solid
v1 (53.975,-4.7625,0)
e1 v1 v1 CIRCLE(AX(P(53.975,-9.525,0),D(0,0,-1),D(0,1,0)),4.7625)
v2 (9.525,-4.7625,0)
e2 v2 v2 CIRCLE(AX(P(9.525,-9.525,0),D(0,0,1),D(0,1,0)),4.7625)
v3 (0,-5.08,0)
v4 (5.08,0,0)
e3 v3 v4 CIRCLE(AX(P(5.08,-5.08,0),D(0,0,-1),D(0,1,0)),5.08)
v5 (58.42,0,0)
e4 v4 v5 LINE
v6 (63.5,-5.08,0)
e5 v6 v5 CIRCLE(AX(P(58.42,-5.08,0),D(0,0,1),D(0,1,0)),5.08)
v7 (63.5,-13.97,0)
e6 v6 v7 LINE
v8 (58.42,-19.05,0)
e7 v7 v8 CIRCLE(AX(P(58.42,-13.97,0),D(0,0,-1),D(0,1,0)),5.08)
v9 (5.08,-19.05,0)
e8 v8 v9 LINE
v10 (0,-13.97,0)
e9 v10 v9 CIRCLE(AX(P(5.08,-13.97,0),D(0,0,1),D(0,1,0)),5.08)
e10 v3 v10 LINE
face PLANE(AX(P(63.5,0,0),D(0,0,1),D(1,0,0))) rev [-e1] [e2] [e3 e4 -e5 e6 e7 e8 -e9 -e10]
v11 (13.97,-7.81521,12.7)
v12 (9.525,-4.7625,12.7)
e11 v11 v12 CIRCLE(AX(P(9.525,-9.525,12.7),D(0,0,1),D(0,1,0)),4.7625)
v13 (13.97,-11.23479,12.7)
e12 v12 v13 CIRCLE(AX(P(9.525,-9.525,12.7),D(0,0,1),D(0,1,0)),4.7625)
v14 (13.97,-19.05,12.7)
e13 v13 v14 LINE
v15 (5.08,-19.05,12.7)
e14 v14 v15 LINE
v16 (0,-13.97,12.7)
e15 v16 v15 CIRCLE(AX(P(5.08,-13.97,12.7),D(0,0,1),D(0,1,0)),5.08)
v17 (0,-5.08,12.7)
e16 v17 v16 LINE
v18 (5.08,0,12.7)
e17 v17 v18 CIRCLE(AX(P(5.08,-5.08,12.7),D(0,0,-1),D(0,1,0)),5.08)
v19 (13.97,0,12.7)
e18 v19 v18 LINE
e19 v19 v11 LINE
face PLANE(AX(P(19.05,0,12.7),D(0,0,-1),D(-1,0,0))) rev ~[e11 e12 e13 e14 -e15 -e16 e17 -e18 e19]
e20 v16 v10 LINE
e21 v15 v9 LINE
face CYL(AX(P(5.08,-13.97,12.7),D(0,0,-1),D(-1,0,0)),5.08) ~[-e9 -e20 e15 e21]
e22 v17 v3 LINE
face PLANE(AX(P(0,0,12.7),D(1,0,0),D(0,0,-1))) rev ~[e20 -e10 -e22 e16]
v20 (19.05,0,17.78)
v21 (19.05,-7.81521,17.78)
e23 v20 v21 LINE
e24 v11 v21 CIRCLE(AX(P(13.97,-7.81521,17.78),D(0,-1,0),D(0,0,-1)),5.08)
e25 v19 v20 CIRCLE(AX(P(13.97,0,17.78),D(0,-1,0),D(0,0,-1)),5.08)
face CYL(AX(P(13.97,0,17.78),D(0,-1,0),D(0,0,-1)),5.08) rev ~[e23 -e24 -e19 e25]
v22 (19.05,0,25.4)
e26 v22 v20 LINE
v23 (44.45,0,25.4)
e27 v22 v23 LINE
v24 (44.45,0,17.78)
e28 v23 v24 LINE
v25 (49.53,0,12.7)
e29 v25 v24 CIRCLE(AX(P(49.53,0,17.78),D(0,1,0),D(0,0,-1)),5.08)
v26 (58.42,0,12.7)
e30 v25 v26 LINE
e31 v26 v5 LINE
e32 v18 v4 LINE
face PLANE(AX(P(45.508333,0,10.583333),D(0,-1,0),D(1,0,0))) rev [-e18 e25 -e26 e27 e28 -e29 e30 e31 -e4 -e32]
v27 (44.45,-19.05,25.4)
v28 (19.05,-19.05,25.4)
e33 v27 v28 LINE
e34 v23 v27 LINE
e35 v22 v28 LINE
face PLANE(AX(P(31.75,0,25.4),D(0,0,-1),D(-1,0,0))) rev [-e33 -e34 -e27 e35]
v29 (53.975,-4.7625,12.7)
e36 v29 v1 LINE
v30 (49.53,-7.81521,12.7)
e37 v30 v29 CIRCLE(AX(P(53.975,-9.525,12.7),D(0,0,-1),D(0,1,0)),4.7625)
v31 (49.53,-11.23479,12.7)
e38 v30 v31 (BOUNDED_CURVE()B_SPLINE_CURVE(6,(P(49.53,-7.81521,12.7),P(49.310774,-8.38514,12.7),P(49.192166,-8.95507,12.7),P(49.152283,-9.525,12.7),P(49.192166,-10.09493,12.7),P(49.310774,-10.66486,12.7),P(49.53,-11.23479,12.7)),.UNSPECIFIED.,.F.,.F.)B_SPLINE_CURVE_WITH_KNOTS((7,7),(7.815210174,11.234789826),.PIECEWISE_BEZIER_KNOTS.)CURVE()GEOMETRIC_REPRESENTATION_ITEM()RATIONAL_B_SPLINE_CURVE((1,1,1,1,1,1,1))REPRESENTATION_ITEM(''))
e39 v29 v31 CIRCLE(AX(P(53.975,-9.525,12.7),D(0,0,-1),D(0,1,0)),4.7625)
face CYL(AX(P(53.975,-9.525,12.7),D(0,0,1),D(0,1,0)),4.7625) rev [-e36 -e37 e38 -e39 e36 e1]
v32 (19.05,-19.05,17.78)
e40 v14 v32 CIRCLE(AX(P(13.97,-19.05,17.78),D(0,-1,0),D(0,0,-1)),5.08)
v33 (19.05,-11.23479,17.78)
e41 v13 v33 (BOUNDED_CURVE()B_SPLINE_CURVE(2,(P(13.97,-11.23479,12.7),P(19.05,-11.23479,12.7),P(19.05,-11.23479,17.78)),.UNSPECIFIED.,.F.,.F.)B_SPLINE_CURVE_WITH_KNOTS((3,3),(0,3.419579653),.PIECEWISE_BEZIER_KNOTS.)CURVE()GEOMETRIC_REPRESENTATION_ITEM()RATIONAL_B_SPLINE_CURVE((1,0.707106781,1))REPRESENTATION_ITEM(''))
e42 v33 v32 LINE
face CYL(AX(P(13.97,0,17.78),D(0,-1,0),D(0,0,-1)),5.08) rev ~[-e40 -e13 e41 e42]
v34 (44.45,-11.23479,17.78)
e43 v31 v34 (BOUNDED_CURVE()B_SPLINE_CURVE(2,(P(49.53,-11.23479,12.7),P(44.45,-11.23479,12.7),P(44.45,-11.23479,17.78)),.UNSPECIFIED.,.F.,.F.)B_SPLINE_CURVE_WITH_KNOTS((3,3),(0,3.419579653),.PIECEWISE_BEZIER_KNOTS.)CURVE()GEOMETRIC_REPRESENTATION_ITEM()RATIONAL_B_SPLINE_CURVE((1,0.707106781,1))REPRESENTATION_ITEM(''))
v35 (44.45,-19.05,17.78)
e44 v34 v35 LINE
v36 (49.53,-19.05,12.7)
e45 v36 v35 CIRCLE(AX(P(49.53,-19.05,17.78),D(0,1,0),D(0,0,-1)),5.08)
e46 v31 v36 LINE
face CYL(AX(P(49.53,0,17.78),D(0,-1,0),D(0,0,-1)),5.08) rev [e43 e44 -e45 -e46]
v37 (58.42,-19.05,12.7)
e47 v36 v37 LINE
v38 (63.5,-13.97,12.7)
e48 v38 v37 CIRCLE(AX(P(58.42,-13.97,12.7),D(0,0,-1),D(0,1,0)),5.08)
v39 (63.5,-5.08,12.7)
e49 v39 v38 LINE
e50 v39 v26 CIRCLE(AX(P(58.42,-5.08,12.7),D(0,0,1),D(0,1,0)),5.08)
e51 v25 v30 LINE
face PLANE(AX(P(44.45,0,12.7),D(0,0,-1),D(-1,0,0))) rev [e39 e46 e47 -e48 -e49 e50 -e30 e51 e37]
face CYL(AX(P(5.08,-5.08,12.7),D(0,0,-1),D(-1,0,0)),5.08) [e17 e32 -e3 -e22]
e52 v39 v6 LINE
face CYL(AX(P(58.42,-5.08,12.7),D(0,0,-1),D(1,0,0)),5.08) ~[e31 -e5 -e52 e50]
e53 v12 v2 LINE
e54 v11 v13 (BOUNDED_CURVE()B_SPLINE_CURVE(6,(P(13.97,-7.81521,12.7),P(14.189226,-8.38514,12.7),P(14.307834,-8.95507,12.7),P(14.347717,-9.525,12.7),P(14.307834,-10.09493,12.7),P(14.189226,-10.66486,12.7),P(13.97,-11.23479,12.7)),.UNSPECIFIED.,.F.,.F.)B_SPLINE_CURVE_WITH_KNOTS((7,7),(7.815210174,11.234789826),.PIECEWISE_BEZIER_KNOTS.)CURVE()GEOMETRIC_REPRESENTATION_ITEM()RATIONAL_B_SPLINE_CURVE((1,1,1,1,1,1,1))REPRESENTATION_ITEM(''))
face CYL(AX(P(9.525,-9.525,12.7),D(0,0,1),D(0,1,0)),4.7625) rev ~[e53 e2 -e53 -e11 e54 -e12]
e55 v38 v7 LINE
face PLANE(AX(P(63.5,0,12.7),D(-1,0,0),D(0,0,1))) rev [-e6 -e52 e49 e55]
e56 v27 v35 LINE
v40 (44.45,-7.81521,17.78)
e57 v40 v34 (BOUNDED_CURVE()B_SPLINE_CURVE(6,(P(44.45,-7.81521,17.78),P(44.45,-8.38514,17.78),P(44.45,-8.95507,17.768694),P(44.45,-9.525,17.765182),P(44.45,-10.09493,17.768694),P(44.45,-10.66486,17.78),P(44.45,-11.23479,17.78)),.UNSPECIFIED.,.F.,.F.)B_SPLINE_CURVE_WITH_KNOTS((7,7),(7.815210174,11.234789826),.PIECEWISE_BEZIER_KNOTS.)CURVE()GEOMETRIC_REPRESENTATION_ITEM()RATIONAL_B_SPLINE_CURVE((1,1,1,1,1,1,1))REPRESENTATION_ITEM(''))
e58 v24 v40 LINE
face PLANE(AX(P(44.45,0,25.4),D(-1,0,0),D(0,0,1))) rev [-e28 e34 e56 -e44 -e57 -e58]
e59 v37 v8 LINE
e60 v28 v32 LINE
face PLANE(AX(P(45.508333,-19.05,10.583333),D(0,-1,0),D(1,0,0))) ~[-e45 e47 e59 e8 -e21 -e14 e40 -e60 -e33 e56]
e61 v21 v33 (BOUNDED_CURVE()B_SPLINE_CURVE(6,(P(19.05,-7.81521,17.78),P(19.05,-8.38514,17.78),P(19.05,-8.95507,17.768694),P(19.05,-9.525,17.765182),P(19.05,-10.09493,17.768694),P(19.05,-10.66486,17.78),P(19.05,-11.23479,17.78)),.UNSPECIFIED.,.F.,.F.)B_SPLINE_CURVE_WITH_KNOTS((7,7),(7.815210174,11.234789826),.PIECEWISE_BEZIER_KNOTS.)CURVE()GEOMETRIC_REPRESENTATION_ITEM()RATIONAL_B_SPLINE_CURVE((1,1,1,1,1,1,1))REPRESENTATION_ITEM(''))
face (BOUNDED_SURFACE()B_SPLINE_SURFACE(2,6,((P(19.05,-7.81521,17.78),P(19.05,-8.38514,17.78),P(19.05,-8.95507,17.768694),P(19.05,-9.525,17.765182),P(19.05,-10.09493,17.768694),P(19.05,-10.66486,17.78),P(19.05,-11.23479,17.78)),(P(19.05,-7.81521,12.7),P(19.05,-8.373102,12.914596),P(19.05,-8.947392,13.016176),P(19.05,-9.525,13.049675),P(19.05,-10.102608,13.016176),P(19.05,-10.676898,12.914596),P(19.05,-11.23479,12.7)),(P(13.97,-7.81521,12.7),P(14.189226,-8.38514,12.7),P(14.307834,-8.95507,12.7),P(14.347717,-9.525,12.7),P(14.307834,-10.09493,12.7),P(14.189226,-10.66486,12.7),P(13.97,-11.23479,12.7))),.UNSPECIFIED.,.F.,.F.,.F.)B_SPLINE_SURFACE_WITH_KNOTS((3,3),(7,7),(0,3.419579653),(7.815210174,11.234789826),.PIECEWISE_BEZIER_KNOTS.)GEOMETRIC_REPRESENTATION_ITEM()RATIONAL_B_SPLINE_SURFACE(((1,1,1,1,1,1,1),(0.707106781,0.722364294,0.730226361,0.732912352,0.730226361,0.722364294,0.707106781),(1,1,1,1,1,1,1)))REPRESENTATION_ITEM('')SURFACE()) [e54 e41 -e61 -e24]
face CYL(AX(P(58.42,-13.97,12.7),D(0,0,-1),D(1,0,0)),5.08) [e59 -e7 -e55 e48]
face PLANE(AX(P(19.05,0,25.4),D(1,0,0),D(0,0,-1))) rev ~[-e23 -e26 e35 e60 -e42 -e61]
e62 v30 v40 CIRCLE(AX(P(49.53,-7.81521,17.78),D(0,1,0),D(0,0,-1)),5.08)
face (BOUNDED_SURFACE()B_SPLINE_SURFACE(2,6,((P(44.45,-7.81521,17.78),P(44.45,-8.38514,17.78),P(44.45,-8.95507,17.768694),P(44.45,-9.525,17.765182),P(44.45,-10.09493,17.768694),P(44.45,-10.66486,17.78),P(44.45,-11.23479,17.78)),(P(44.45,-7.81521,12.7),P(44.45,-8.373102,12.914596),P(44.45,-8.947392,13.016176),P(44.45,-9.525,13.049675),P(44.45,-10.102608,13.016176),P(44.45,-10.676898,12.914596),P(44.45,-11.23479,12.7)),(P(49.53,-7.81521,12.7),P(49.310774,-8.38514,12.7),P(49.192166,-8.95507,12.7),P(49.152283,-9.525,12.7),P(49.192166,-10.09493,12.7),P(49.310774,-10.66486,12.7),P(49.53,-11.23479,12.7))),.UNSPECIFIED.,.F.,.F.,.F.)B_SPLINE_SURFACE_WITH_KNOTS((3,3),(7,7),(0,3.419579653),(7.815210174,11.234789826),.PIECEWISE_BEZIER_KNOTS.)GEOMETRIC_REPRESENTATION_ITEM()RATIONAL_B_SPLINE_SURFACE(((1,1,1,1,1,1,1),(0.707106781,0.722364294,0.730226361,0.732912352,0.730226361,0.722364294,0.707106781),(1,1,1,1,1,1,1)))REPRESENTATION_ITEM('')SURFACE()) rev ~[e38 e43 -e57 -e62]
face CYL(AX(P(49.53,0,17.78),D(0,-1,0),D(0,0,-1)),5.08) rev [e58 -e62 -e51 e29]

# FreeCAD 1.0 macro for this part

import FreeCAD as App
import Part
import Sketcher
from FreeCAD import Vector
Q = App.Units.Quantity


def edges_at(feature, points):
    """Names of the edges that pass closest to the given points."""
    edges = feature.Shape.Edges
    near = lambda p: min(range(len(edges)), key=lambda i: edges[i].distToShape(Part.Vertex(*p))[0])
    return sorted({f"Edge{near(p) + 1}" for p in points})

doc = App.newDocument("Part")
params = doc.addObject("Spreadsheet::Sheet", "Params")
for row, (alias, value) in enumerate([
    ("sketch1_height", "1 in"),
    ("sketch1_width", "1.25 in"),
    ("pad1_length", "0.75 in"),
    ("sketch2_diameter", "0.375 in"),
    ("pocket1_length", "1 in"),
    ("fillet_radius", "0.2 in"),
], start=1):
    params.set(f"A{row}", alias)
    params.set(f"B{row}", "=" + value)
    params.setAlias(f"B{row}", alias)

body = doc.addObject("PartDesign::Body", "Body")

# Sketch on XZ plane
sketch1 = body.newObject("Sketcher::SketchObject", "Sketch")
sketch1.AttachmentSupport = (doc.getObject("XZ_Plane"), [""])
sketch1.MapMode = "FlatFace"
sketch1.addGeometry([
    Part.LineSegment(Vector(0, 12.7, 0), Vector(0, 0, 0)),  # 0
    Part.LineSegment(Vector(0, 0, 0), Vector(31.75, 0, 0)),  # 1
    Part.LineSegment(Vector(31.75, 0, 0), Vector(31.75, 25.4, 0)),  # 2
    Part.LineSegment(Vector(31.75, 25.4, 0), Vector(19.05, 25.4, 0)),  # 3
    Part.LineSegment(Vector(19.05, 25.4, 0), Vector(19.05, 12.7, 0)),  # 4
    Part.LineSegment(Vector(19.05, 12.7, 0), Vector(0, 12.7, 0)),  # 5
], False)
sketch1.addConstraint([
    Sketcher.Constraint("Coincident", 0, 2, 1, 1),
    Sketcher.Constraint("Coincident", 1, 2, 2, 1),
    Sketcher.Constraint("Coincident", 2, 2, 3, 1),
    Sketcher.Constraint("Coincident", 3, 2, 4, 1),
    Sketcher.Constraint("Coincident", 4, 2, 5, 1),
    Sketcher.Constraint("Coincident", 5, 2, 0, 1),
    Sketcher.Constraint("Vertical", 0),
    Sketcher.Constraint("Horizontal", 1),
    Sketcher.Constraint("Vertical", 2),
    Sketcher.Constraint("Horizontal", 3),
    Sketcher.Constraint("Vertical", 4),
    Sketcher.Constraint("Horizontal", 5),
    Sketcher.Constraint("Coincident", 0, 2, -1, 1),
    Sketcher.Constraint("Equal", 3, 0),
    Sketcher.Constraint("Equal", 0, 4),
    Sketcher.Constraint("DistanceY", 2, 1, 2, 2, Q("1 in")),
    Sketcher.Constraint("DistanceX", 1, 1, 1, 2, Q("1.25 in")),
])
sketch1.setExpression("Constraints[15]", "Params.sketch1_height")
sketch1.setExpression("Constraints[16]", "Params.sketch1_width")
pad1 = body.newObject("PartDesign::Pad", "Pad")
pad1.Profile = sketch1
pad1.setExpression("Length", "Params.pad1_length")

# Sketch on XY plane
sketch2 = body.newObject("Sketcher::SketchObject", "Sketch001")
sketch2.AttachmentSupport = (doc.getObject("XY_Plane"), [""])
sketch2.MapMode = "FlatFace"
sketch2.AttachmentOffset = App.Placement(Vector(0, 0, 0.5 * 25.4), App.Rotation())
sketch2.addGeometry(Part.Circle(Vector(9.525, -9.525, 0), Vector(0, 0, 1), 4.7625), False)
sketch2.addConstraint([
    Sketcher.Constraint("Diameter", 0, Q("0.375 in")),
    Sketcher.Constraint("DistanceX", -1, 1, 0, 3, Q("0.375 in")),
    Sketcher.Constraint("DistanceY", 0, 3, -1, 1, Q("0.375 in")),
])
sketch2.setExpression("Constraints[0]", "Params.sketch2_diameter")
pocket1 = body.newObject("PartDesign::Pocket", "Pocket")
pocket1.Profile = sketch2
pocket1.setExpression("Length", "Params.pocket1_length")
doc.recompute()

fillet = body.newObject("PartDesign::Fillet", "Fillet")
fillet.Base = (pocket1, edges_at(pocket1, [(0, -19.05, 6.35), (0, 0, 6.35), (19.05, -9.525, 12.7)]))
fillet.setExpression("Radius", "Params.fillet_radius")
body2 = doc.addObject("PartDesign::Body", "Body001")
doc.recompute()

body2.BaseFeature = body
doc.recompute()

mirroring = doc.addObject("Part::Mirroring", "Mirroring")
mirroring.Source = body
mirroring.Base = Vector(31.75, -9.525, 12.7)
mirroring.Normal = Vector(1, 0, 0)
body3 = doc.addObject("PartDesign::Body", "Body002")
body3.BaseFeature = mirroring
boolean = body2.newObject("PartDesign::Boolean", "Boolean")
boolean.Type = "Fuse"
boolean.addObjects([body3])
doc.recompute()
mirroring.Visibility = False

doc.recompute()
